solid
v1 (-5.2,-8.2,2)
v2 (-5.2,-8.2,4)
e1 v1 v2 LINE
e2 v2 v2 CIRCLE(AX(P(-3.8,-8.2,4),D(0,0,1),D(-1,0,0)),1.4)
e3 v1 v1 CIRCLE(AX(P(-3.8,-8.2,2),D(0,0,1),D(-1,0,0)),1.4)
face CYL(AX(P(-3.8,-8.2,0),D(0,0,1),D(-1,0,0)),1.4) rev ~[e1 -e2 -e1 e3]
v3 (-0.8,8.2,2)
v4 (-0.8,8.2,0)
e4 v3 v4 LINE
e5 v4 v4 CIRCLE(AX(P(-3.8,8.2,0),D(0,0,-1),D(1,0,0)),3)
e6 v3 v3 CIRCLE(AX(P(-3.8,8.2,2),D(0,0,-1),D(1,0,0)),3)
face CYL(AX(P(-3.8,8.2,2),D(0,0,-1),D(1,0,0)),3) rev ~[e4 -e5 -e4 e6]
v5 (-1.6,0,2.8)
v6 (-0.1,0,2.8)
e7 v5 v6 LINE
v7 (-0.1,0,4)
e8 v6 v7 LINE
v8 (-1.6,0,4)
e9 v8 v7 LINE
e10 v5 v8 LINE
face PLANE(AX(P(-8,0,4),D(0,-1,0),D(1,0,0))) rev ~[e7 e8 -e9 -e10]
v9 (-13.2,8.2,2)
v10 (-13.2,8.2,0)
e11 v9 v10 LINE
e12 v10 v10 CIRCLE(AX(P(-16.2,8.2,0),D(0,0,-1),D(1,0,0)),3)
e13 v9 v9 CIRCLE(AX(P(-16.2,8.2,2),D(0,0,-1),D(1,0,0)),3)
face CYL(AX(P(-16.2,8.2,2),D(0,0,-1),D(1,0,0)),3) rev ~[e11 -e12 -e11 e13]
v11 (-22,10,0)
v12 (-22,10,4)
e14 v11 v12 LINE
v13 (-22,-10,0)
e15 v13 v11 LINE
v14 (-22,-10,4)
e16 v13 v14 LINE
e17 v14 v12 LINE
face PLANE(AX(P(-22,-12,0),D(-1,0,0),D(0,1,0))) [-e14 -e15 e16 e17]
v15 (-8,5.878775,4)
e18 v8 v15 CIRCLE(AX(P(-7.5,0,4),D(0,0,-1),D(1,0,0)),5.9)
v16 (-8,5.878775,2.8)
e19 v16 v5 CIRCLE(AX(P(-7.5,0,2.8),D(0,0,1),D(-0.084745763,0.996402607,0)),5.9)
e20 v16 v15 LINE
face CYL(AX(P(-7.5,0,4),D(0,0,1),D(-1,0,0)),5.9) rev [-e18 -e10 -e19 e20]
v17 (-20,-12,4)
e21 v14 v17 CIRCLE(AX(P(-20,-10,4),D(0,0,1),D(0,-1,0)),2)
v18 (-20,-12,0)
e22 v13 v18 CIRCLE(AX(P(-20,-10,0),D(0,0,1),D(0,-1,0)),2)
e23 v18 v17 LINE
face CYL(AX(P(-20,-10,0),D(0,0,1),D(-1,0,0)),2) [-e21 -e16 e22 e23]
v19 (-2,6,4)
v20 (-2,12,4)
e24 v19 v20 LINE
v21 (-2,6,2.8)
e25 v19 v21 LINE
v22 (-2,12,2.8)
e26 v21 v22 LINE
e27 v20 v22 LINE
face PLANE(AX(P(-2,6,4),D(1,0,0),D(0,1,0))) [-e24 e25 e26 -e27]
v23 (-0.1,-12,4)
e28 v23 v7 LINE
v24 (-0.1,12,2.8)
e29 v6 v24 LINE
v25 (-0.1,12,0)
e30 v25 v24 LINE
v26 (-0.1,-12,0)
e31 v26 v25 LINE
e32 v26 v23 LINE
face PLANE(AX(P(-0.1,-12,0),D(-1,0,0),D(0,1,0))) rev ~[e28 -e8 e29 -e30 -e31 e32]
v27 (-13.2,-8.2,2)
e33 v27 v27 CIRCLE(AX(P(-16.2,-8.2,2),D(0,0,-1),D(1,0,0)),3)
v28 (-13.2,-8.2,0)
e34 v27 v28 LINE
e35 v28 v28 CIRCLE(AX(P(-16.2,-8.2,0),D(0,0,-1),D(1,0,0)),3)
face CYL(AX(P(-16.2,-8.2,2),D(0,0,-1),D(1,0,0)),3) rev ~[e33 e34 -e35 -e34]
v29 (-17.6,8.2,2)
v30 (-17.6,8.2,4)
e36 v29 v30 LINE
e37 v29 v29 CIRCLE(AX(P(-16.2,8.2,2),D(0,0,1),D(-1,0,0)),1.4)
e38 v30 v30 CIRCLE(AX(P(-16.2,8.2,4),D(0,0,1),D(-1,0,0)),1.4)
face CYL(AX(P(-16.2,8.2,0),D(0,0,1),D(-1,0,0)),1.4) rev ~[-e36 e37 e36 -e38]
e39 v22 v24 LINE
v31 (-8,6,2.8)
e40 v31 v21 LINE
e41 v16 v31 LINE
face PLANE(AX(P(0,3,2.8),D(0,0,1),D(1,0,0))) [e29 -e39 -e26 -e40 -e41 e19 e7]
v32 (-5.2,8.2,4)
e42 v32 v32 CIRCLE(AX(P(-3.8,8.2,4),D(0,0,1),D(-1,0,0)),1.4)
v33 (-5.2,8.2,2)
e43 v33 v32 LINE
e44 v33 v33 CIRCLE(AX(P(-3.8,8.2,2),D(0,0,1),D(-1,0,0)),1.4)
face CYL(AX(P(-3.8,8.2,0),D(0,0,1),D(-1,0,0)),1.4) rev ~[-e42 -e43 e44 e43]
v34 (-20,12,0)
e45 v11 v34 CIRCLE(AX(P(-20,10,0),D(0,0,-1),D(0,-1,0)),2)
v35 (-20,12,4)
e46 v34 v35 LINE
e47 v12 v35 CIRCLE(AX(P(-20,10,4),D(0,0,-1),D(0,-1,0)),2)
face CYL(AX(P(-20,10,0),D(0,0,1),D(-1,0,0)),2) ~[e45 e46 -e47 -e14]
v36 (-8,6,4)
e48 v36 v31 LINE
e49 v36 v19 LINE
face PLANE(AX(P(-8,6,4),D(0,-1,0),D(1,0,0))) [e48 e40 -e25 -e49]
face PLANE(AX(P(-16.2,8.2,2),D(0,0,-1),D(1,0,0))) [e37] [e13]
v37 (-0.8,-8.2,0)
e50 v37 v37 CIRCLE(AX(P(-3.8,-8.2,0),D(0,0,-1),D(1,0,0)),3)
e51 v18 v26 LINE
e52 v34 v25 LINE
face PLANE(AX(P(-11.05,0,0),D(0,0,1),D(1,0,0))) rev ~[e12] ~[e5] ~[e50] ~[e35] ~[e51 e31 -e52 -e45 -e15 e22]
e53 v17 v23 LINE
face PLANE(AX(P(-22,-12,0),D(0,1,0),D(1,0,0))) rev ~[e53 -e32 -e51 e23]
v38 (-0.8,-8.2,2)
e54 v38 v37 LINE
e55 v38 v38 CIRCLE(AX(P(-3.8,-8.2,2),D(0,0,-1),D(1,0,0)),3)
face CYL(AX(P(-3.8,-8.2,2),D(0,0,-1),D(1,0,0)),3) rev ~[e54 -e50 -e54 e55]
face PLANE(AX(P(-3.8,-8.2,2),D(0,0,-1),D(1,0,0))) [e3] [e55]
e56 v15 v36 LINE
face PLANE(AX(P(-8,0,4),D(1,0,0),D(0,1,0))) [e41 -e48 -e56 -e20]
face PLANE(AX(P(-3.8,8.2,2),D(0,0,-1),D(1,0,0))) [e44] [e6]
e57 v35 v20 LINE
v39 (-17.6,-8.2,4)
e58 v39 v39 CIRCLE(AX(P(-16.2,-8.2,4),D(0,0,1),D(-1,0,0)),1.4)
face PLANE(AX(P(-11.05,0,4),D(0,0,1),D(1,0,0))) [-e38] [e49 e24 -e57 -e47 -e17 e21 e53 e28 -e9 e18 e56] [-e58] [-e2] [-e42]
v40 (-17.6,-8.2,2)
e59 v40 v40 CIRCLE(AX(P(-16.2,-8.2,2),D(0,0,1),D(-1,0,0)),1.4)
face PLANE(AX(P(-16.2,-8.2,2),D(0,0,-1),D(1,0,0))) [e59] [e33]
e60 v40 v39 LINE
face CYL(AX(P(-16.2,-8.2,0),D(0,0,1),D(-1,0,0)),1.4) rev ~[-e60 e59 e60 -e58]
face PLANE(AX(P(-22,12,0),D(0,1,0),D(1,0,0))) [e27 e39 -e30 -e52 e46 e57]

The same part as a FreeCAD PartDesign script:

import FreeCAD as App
import Part
import Sketcher
from FreeCAD import Vector
Q = App.Units.Quantity


def edges_at(feature, points):
    """Names of the edges that pass closest to the given points."""
    edges = feature.Shape.Edges
    near = lambda p: min(range(len(edges)), key=lambda i: edges[i].distToShape(Part.Vertex(*p))[0])
    return sorted({f"Edge{near(p) + 1}" for p in points})

doc = App.newDocument("Part")
body = doc.addObject("PartDesign::Body", "Body")

# Sketch on XY plane
sketch1 = body.newObject("Sketcher::SketchObject", "Sketch")
sketch1.AttachmentSupport = (doc.getObject("XY_Plane"), [""])
sketch1.MapMode = "FlatFace"
sketch1.addGeometry([
    Part.LineSegment(Vector(-22, 12, 0), Vector(-22, -12, 0)),
    Part.LineSegment(Vector(-22, -12, 0), Vector(-0.1, -12, 0)),
    Part.LineSegment(Vector(-0.1, -12, 0), Vector(-0.1, 12, 0)),
    Part.LineSegment(Vector(-0.1, 12, 0), Vector(-22, 12, 0)),
], False)
sketch1.addConstraint([
    Sketcher.Constraint("Coincident", 0, 2, 1, 1),
    Sketcher.Constraint("Coincident", 1, 2, 2, 1),
    Sketcher.Constraint("Coincident", 2, 2, 3, 1),
    Sketcher.Constraint("Coincident", 3, 2, 0, 1),
    Sketcher.Constraint("Vertical", 0),
    Sketcher.Constraint("Horizontal", 1),
    Sketcher.Constraint("Vertical", 2),
    Sketcher.Constraint("Horizontal", 3),
    Sketcher.Constraint("DistanceY", 0, 2, 0, 1, Q("24 mm")),
    Sketcher.Constraint("DistanceX", 1, 1, 1, 2, Q("21.9 mm")),
    Sketcher.Constraint("DistanceX", 0, 2, -1, 1, Q("22 mm")),
    Sketcher.Constraint("DistanceY", 0, 2, -1, 1, Q("12 mm")),
])
pad1 = body.newObject("PartDesign::Pad", "Pad")
pad1.Profile = sketch1
pad1.Length = 4

# Sketch on XY plane
sketch2 = body.newObject("Sketcher::SketchObject", "Sketch001")
sketch2.AttachmentSupport = (doc.getObject("XY_Plane"), [""])
sketch2.MapMode = "FlatFace"
sketch2.AttachmentOffset = App.Placement(Vector(0, 0, 4), App.Rotation())
sketch2.addGeometry(Part.Circle(Vector(7.5, 0, 0), Vector(0, 0, 1), 5.9), False)
sketch2.addConstraint([
    Sketcher.Constraint("PointOnObject", 0, 3, -1),
    Sketcher.Constraint("Diameter", 0, Q("11.8 mm")),
    Sketcher.Constraint("DistanceX", -1, 1, 0, 3, Q("7.5 mm")),
])
pocket1 = body.newObject("PartDesign::Pocket", "Pocket")
pocket1.Profile = sketch2
pocket1.Length = 1.2
doc.recompute()

mirrored = body.newObject("PartDesign::Mirrored", "Mirrored")
mirrored.Originals = [pocket1]
mirrored.MirrorPlane = (doc.getObject("YZ_Plane"), [""])
body.Tip = mirrored

# Sketch on XY plane
sketch3 = body.newObject("Sketcher::SketchObject", "Sketch002")
sketch3.AttachmentSupport = (doc.getObject("XY_Plane"), [""])
sketch3.MapMode = "FlatFace"
sketch3.AttachmentOffset = App.Placement(Vector(0, 0, 4), App.Rotation())
sketch3.addGeometry([
    Part.LineSegment(Vector(-8, 6, 0), Vector(-8, 0, 0)),  # 0
    Part.LineSegment(Vector(-8, 0, 0), Vector(8, 0, 0)),  # 1
    Part.LineSegment(Vector(8, 0, 0), Vector(8, 6, 0)),  # 2
    Part.LineSegment(Vector(8, 6, 0), Vector(2, 6, 0)),  # 3
    Part.LineSegment(Vector(2, 6, 0), Vector(2, 12, 0)),  # 4
    Part.LineSegment(Vector(2, 12, 0), Vector(-2, 12, 0)),  # 5
    Part.LineSegment(Vector(-2, 12, 0), Vector(-2, 6, 0)),  # 6
    Part.LineSegment(Vector(-2, 6, 0), Vector(-8, 6, 0)),  # 7
], False)
sketch3.addConstraint([
    Sketcher.Constraint("Coincident", 0, 2, 1, 1),
    Sketcher.Constraint("Coincident", 1, 2, 2, 1),
    Sketcher.Constraint("Coincident", 2, 2, 3, 1),
    Sketcher.Constraint("Coincident", 3, 2, 4, 1),
    Sketcher.Constraint("Coincident", 4, 2, 5, 1),
    Sketcher.Constraint("Coincident", 5, 2, 6, 1),
    Sketcher.Constraint("Coincident", 6, 2, 7, 1),
    Sketcher.Constraint("Coincident", 7, 2, 0, 1),
    Sketcher.Constraint("Vertical", 0),
    Sketcher.Constraint("Horizontal", 1),
    Sketcher.Constraint("Vertical", 2),
    Sketcher.Constraint("Horizontal", 3),
    Sketcher.Constraint("Vertical", 4),
    Sketcher.Constraint("Horizontal", 5),
    Sketcher.Constraint("Vertical", 6),
    Sketcher.Constraint("Horizontal", 7),
    Sketcher.Constraint("Symmetric", 0, 2, 1, 2, -1, 1),
    Sketcher.Constraint("Symmetric", 3, 2, 6, 2, -2),
    Sketcher.Constraint("Equal", 7, 0),
    Sketcher.Constraint("Equal", 2, 4),
    Sketcher.Constraint("DistanceX", 1, 1, 1, 2, Q("16 mm")),
    Sketcher.Constraint("DistanceX", 3, 2, 3, 1, Q("6 mm")),
])
pocket2 = body.newObject("PartDesign::Pocket", "Pocket001")
pocket2.Profile = sketch3
pocket2.Length = 1.2

# Sketch on XY plane
sketch4 = body.newObject("Sketcher::SketchObject", "Sketch003")
sketch4.AttachmentSupport = (doc.getObject("XY_Plane"), [""])
sketch4.MapMode = "FlatFace"
sketch4.addGeometry([
    Part.Circle(Vector(-16.2, -8.2, 0), Vector(0, 0, 1), 1.4),
    Part.Circle(Vector(-16.2, 8.2, 0), Vector(0, 0, 1), 1.4),
    Part.Circle(Vector(-3.8, -8.2, 0), Vector(0, 0, 1), 1.4),
    Part.Circle(Vector(-3.8, 8.2, 0), Vector(0, 0, 1), 1.4),
], False)
sketch4.addConstraint([
    Sketcher.Constraint("Equal", 0, 1),
    Sketcher.Constraint("Equal", 1, 2),
    Sketcher.Constraint("Equal", 2, 3),
    Sketcher.Constraint("Symmetric", 0, 3, 1, 3, -1),
    Sketcher.Constraint("Symmetric", 2, 3, 3, 3, -1),
    Sketcher.Constraint("Horizontal", 0, 3, 2, 3),
    Sketcher.Constraint("Diameter", 0, Q("2.8 mm")),
    Sketcher.Constraint("DistanceX", 0, 3, -1, 1, Q("16.2 mm")),
    Sketcher.Constraint("DistanceY", 0, 3, -1, 1, Q("8.2 mm")),
    Sketcher.Constraint("DistanceX", 2, 3, -1, 1, Q("3.8 mm")),
])
doc.recompute()
hole = body.newObject("PartDesign::Hole", "Hole")
hole.Profile = sketch4
hole.ThreadType = "None"
hole.Diameter = 2.8
hole.DepthType = "Dimension"
hole.Depth = 25
hole.DrillPoint = "Flat"
hole.HoleCutType = "Counterbore"
hole.HoleCutDiameter = 6
hole.HoleCutDepth = 2
hole.Reversed = True
doc.recompute()

mirrored2 = body.newObject("PartDesign::Mirrored", "Mirrored001")
mirrored2.Originals = [hole]
mirrored2.MirrorPlane = (doc.getObject("YZ_Plane"), [""])
body.Tip = mirrored2
doc.recompute()

fillet = body.newObject("PartDesign::Fillet", "Fillet")
fillet.Base = (mirrored2, edges_at(mirrored2, [(-22, -12, 2), (-22, 12, 2)]))
fillet.Radius = 2

doc.recompute()
